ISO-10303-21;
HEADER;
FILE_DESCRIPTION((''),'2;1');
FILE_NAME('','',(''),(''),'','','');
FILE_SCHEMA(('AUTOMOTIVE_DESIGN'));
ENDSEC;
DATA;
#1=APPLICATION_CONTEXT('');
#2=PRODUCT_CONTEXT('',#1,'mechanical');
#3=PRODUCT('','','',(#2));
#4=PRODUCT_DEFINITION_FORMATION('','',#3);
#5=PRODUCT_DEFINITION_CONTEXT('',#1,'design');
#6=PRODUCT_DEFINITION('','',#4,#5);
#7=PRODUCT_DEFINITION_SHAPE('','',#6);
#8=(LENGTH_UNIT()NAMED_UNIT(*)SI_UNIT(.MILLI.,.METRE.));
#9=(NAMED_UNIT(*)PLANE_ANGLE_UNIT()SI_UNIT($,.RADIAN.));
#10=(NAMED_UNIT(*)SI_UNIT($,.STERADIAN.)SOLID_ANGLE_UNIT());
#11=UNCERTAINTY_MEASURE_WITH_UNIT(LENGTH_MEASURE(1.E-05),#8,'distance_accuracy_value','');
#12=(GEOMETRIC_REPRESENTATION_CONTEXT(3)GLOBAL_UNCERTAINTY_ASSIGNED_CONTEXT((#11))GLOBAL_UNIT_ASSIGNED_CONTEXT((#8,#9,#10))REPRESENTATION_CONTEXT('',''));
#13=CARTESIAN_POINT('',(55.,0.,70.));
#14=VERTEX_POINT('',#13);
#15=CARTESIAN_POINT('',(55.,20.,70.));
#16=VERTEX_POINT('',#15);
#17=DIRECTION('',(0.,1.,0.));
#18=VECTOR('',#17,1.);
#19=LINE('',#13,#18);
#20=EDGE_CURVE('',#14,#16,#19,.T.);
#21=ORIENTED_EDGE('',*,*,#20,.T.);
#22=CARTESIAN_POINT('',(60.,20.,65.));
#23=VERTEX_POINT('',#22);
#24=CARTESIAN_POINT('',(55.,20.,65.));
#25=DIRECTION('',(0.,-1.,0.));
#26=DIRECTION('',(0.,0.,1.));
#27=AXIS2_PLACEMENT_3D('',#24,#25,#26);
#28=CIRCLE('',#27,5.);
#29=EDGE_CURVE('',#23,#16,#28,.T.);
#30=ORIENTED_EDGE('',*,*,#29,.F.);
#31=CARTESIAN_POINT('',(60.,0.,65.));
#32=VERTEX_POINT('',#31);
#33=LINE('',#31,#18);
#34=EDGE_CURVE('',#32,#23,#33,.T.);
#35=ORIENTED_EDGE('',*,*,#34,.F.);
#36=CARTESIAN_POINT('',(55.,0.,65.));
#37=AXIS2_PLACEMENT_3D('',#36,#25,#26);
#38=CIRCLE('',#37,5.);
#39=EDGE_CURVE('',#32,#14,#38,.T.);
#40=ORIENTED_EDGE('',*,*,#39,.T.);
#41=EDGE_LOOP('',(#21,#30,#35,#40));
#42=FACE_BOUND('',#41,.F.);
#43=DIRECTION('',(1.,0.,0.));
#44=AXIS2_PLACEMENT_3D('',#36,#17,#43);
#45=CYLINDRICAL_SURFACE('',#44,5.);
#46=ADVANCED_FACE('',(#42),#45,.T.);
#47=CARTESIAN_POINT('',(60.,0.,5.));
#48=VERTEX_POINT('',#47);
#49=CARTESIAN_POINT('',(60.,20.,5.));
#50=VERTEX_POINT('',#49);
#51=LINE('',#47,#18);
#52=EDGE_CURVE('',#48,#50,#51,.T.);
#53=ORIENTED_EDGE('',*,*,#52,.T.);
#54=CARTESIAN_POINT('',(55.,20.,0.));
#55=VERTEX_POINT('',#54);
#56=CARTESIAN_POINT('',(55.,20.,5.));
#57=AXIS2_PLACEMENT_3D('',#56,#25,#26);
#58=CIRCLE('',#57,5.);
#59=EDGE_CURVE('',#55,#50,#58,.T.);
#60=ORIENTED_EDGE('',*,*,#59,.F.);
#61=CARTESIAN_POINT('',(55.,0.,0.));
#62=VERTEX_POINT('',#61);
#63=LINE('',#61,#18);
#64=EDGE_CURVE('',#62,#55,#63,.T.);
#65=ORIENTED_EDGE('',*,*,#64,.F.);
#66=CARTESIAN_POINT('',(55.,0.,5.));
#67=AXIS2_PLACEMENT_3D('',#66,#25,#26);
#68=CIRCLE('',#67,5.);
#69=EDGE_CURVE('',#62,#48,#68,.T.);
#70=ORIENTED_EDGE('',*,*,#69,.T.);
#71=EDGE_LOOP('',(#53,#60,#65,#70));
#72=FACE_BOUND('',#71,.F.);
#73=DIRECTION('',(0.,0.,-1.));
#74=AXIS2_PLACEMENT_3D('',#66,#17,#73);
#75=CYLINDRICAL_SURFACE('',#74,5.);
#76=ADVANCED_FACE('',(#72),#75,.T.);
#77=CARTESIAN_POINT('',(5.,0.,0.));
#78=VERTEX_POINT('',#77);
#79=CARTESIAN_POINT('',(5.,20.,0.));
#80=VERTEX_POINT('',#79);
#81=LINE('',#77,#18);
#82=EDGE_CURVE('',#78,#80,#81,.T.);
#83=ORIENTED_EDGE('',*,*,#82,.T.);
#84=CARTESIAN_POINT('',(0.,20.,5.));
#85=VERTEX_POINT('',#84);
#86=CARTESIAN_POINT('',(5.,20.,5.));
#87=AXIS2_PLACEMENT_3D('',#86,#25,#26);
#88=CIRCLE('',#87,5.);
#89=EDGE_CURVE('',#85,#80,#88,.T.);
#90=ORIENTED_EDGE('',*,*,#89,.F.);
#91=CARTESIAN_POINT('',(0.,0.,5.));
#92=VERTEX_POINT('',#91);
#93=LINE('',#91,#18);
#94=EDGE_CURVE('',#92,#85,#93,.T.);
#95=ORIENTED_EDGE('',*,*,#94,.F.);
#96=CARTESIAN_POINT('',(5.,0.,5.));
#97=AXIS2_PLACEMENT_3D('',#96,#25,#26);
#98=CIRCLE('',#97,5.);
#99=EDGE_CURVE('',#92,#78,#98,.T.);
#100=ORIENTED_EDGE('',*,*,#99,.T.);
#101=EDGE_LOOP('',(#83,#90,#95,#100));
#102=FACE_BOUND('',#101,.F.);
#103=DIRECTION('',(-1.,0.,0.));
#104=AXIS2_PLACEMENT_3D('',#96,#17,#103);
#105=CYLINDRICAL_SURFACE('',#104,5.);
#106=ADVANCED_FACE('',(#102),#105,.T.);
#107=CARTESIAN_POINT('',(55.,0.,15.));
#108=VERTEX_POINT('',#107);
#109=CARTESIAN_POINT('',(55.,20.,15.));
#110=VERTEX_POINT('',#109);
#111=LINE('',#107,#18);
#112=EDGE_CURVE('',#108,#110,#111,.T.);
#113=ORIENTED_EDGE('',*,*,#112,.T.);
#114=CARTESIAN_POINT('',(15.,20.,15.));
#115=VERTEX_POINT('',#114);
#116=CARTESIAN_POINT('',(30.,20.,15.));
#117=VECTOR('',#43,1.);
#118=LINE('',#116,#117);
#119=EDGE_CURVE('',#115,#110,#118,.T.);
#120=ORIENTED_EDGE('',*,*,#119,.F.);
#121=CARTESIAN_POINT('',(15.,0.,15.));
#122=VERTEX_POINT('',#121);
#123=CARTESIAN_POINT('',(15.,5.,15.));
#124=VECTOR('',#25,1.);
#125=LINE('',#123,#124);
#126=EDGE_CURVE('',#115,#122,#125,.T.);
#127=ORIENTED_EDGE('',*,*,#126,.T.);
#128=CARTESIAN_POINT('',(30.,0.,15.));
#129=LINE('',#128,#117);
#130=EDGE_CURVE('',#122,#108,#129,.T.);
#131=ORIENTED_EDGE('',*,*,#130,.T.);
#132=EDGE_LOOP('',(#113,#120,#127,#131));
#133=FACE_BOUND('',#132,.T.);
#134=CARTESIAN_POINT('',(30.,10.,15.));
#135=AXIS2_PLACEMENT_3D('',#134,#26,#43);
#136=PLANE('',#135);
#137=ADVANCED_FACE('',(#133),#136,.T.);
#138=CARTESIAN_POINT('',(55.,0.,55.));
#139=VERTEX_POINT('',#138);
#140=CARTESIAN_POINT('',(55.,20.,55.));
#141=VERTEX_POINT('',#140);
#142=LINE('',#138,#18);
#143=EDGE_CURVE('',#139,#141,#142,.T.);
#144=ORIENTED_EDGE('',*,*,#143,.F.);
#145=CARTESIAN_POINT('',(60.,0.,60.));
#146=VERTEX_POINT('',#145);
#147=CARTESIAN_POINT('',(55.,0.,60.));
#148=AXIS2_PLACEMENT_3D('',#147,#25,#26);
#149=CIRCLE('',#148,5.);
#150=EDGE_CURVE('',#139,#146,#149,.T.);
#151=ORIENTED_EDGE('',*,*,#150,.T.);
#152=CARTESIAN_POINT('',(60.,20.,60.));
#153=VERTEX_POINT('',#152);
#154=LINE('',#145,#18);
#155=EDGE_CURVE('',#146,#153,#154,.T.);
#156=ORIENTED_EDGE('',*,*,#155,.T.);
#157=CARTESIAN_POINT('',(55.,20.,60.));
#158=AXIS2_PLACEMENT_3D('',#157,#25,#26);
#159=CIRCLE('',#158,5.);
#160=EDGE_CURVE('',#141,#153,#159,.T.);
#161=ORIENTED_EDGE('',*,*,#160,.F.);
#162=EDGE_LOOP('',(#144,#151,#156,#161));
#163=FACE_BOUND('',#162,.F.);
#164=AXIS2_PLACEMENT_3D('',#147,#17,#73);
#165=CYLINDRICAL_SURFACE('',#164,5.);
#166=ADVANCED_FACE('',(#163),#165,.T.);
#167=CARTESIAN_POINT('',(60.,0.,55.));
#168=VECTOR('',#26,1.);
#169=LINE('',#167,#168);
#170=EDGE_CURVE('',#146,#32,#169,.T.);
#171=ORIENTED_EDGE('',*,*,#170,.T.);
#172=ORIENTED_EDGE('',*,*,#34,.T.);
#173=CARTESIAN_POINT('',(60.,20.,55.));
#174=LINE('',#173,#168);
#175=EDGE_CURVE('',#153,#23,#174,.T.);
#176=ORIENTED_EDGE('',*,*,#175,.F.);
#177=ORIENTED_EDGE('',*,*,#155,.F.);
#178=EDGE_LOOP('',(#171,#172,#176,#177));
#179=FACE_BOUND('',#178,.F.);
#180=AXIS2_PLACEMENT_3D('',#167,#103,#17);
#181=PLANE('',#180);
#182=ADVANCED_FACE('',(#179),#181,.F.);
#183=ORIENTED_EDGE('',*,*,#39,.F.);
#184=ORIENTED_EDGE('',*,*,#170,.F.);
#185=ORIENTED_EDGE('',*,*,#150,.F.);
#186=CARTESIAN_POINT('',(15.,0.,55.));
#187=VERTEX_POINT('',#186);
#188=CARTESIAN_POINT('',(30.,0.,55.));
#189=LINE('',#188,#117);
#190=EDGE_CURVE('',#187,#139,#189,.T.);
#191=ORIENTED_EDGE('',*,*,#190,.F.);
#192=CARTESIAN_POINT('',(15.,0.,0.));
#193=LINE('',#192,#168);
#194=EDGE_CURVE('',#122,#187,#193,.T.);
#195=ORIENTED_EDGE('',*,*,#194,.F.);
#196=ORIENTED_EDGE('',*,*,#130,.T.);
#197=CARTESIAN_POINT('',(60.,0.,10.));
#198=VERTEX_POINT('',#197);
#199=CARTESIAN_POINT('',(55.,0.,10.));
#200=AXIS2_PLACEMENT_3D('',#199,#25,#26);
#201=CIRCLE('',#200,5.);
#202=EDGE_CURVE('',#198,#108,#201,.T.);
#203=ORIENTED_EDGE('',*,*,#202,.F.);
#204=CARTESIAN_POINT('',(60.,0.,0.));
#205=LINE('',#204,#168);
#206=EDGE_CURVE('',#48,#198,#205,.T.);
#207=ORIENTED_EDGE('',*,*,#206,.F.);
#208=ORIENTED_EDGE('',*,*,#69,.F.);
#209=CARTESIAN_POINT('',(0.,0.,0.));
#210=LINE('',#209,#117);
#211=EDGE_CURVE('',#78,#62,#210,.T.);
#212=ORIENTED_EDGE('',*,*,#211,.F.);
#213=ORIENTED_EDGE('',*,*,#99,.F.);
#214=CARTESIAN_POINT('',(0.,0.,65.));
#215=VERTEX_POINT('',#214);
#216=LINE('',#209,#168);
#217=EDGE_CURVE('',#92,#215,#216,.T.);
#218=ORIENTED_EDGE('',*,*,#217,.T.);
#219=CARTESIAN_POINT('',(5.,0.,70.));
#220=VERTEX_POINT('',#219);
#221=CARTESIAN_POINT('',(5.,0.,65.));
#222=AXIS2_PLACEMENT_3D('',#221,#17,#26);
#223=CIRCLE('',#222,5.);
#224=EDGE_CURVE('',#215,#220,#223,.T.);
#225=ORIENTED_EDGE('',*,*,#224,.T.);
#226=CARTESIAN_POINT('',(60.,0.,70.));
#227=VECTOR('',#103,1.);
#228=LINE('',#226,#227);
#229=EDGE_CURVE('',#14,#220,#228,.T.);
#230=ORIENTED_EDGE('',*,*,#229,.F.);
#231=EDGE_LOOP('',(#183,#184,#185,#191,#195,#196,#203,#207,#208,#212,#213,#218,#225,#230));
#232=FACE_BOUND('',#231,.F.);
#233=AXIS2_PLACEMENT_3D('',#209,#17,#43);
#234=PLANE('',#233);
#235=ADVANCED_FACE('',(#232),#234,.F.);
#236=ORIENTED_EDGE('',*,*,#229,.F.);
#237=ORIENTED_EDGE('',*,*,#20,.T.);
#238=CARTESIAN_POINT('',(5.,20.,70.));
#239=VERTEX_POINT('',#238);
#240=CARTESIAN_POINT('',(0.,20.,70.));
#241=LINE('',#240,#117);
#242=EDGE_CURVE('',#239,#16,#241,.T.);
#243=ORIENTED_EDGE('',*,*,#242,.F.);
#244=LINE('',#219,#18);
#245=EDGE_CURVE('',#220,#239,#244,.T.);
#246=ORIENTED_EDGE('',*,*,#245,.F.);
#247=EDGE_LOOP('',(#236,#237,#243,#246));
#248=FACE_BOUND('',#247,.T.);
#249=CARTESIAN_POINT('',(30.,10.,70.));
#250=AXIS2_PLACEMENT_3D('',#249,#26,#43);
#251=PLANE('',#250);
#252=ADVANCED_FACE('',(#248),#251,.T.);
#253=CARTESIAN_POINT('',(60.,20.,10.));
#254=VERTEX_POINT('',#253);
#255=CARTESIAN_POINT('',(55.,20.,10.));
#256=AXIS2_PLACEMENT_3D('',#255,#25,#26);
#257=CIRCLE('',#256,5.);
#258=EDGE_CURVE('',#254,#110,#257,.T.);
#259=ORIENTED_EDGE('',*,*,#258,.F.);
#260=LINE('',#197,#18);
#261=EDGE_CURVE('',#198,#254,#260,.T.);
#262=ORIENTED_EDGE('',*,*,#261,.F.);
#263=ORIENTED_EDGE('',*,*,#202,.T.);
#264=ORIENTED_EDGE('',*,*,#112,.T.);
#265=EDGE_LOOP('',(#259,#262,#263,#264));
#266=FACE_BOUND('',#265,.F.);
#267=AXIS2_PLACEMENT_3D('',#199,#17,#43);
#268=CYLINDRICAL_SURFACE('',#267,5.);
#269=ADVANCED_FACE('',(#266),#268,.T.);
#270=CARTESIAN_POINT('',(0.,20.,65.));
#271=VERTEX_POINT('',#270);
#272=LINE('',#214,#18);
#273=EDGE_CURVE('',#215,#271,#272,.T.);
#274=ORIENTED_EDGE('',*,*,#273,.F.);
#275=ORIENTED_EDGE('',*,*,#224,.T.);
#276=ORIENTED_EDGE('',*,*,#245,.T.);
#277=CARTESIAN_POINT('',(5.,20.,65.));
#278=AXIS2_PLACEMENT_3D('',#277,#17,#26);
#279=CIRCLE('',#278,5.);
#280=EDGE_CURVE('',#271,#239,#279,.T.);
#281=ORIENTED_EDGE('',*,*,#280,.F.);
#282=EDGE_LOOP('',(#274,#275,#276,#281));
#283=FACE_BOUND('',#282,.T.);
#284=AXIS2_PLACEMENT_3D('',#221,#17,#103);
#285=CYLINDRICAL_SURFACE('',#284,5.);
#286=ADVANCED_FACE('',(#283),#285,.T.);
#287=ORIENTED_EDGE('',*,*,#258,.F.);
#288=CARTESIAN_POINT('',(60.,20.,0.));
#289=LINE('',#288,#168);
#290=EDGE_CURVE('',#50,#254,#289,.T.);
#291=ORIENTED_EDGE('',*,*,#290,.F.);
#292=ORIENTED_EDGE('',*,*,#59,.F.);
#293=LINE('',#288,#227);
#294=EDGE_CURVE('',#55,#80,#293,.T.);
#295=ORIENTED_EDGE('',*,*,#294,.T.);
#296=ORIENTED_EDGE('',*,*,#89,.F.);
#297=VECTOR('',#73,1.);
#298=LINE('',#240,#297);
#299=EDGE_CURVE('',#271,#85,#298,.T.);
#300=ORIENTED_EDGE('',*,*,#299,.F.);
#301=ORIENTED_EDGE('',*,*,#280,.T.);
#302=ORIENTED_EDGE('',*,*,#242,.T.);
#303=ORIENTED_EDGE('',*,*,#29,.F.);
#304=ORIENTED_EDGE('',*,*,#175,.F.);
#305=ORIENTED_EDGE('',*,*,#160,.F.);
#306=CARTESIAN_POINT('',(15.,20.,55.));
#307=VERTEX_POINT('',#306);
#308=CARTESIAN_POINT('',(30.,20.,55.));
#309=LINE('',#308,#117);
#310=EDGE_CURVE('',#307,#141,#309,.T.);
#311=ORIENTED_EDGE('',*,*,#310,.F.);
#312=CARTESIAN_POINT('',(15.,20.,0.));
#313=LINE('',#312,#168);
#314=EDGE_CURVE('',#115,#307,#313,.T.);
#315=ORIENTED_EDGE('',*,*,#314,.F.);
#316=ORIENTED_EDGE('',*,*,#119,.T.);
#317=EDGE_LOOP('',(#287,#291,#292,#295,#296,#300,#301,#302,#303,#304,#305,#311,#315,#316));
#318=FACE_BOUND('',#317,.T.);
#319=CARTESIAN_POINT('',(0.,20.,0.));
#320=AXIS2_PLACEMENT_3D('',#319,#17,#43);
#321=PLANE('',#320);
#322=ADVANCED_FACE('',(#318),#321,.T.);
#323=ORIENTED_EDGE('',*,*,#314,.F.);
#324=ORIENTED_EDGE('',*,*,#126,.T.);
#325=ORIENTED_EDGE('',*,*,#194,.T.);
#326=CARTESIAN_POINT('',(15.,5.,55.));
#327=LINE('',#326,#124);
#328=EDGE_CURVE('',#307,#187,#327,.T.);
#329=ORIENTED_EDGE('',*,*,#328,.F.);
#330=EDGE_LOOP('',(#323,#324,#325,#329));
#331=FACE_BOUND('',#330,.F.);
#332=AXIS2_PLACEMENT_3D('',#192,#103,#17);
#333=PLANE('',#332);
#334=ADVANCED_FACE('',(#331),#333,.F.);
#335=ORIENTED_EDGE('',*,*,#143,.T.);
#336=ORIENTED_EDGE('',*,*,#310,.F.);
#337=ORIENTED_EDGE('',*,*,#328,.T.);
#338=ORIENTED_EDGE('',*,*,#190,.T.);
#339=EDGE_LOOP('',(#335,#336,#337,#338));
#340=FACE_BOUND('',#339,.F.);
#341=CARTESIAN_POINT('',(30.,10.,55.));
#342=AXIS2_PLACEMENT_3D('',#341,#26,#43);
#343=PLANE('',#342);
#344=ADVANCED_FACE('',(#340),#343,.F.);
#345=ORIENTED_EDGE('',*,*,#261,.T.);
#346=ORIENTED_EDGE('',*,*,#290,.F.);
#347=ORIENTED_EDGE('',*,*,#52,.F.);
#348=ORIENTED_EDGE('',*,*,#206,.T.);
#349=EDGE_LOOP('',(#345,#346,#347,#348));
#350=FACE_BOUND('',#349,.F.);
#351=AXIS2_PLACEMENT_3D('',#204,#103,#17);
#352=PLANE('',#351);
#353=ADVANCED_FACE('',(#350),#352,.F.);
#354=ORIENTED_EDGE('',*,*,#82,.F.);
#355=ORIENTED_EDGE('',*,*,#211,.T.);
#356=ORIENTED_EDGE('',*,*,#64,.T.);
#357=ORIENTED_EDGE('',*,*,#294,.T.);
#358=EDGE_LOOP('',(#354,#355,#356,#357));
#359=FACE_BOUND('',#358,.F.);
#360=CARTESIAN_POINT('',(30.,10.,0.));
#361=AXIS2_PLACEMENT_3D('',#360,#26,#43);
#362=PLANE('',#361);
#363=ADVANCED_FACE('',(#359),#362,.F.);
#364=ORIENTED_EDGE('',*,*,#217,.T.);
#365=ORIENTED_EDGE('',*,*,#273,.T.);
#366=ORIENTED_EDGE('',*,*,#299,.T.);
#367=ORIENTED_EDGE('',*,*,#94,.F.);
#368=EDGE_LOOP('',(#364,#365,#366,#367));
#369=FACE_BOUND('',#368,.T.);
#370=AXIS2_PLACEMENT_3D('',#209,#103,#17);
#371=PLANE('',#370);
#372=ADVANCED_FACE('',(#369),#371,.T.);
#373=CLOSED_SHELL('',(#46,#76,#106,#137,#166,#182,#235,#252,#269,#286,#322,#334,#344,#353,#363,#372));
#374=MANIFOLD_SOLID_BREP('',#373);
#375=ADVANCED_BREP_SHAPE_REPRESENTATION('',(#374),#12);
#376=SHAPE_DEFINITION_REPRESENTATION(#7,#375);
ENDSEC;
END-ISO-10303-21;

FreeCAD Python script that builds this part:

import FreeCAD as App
import Part
import Sketcher

V = App.Vector


def edges_at(feature, points):
    """Names of the edges that pass closest to the given points."""
    edges = feature.Shape.Edges
    near = lambda p: min(range(len(edges)), key=lambda i: edges[i].distToShape(Part.Vertex(*p))[0])
    return sorted({f"Edge{near(p) + 1}" for p in points})


def add_polygon(sketch, points):
    """Adds a closed chain of lines whose ends are joined by coincident constraints."""
    first, n = sketch.GeometryCount, len(points)
    for a, b in zip(points, points[1:] + points[:1]):
        sketch.addGeometry(Part.LineSegment(App.Vector(*a, 0), App.Vector(*b, 0)), False)
    for i in range(n):
        sketch.addConstraint(Sketcher.Constraint("Coincident", first + i, 2, first + (i + 1) % n, 1))

doc = App.newDocument("Part")
params = doc.addObject("Spreadsheet::Sheet", "Params")
for row, (alias, value) in enumerate([
    ("sketch1_width", "60 mm"),
    ("sketch1_height", "20 mm"),
    ("pad1_length", "15 mm"),
    ("sketch2_width", "15 mm"),
    ("sketch2_height", "20 mm"),
    ("pad2_length", "70 mm"),
    ("sketch3_width", "60 mm"),
    ("sketch3_height", "20 mm"),
    ("pad3_length", "15 mm"),
    ("fillet_radius", "5 mm"),
], start=1):
    params.set(f"A{row}", alias)
    params.set(f"B{row}", "=" + value)
    params.setAlias(f"B{row}", alias)

body = doc.addObject("PartDesign::Body", "Body")

sketch1 = body.newObject("Sketcher::SketchObject", "Sketch")
sketch1.AttachmentSupport = (doc.getObject("XY_Plane"), [""])
sketch1.MapMode = "FlatFace"
add_polygon(sketch1, [(0, 20), (0, 0), (60, 0), (60, 20)])
sketch1.addConstraint(Sketcher.Constraint("Vertical", 0))
sketch1.addConstraint(Sketcher.Constraint("Horizontal", 1))
sketch1.addConstraint(Sketcher.Constraint("Vertical", 2))
sketch1.addConstraint(Sketcher.Constraint("Horizontal", 3))
sketch1.addConstraint(Sketcher.Constraint("Coincident", 0, 2, -1, 1))
sketch1.addConstraint(Sketcher.Constraint("DistanceX", 1, 1, 1, 2, 60.0))
sketch1.addConstraint(Sketcher.Constraint("DistanceY", 0, 2, 0, 1, 20.0))
sketch1.setExpression("Constraints[9]", "Params.sketch1_width")
sketch1.setExpression("Constraints[10]", "Params.sketch1_height")
pad1 = body.newObject("PartDesign::Pad", "Pad")
pad1.Profile = sketch1
pad1.setExpression("Length", "Params.pad1_length")
body2 = doc.addObject("PartDesign::Body", "Body001")

sketch2 = body2.newObject("Sketcher::SketchObject", "Sketch001")
sketch2.AttachmentSupport = (doc.getObject("XY_Plane001"), [""])
sketch2.MapMode = "FlatFace"
add_polygon(sketch2, [(0, 20), (0, 0), (15, 0), (15, 20)])
sketch2.addConstraint(Sketcher.Constraint("Vertical", 0))
sketch2.addConstraint(Sketcher.Constraint("Horizontal", 1))
sketch2.addConstraint(Sketcher.Constraint("Vertical", 2))
sketch2.addConstraint(Sketcher.Constraint("Horizontal", 3))
sketch2.addConstraint(Sketcher.Constraint("Coincident", 0, 2, -1, 1))
sketch2.addConstraint(Sketcher.Constraint("DistanceX", 1, 1, 1, 2, 15.0))
sketch2.addConstraint(Sketcher.Constraint("DistanceY", 0, 2, 0, 1, 20.0))
sketch2.setExpression("Constraints[9]", "Params.sketch2_width")
sketch2.setExpression("Constraints[10]", "Params.sketch2_height")
pad2 = body2.newObject("PartDesign::Pad", "Pad001")
pad2.Profile = sketch2
pad2.setExpression("Length", "Params.pad2_length")
body3 = doc.addObject("PartDesign::Body", "Body002")
body3.AllowCompound = True

sketch3 = body3.newObject("Sketcher::SketchObject", "Sketch002")
sketch3.AttachmentSupport = (doc.getObject("XY_Plane002"), [""])
sketch3.MapMode = "FlatFace"
sketch3.AttachmentOffset = App.Placement(V(0, 0, 55), App.Rotation())
add_polygon(sketch3, [(0, 20), (0, 0), (60, 0), (60, 20)])
sketch3.addConstraint(Sketcher.Constraint("Vertical", 0))
sketch3.addConstraint(Sketcher.Constraint("Horizontal", 1))
sketch3.addConstraint(Sketcher.Constraint("Vertical", 2))
sketch3.addConstraint(Sketcher.Constraint("Horizontal", 3))
sketch3.addConstraint(Sketcher.Constraint("Coincident", 0, 2, -1, 1))
sketch3.addConstraint(Sketcher.Constraint("DistanceX", 1, 1, 1, 2, 60.0))
sketch3.addConstraint(Sketcher.Constraint("DistanceY", 0, 2, 0, 1, 20.0))
sketch3.setExpression("Constraints[9]", "Params.sketch3_width")
sketch3.setExpression("Constraints[10]", "Params.sketch3_height")
pad3 = body3.newObject("PartDesign::Pad", "Pad002")
pad3.Profile = sketch3
pad3.setExpression("Length", "Params.pad3_length")
doc.recompute()

boolean = body3.newObject("PartDesign::Boolean", "Boolean")
boolean.Type = "Fuse"
boolean.addObjects([body])
doc.recompute()

boolean2 = body3.newObject("PartDesign::Boolean", "Boolean001")
boolean2.Type = "Fuse"
boolean2.addObjects([body2])
doc.recompute()

fillet = body3.newObject("PartDesign::Fillet", "Fillet")
fillet.Base = (boolean2, edges_at(boolean2, [
    (0, 10, 70),
    (60, 10, 70),
    (0, 10, 0),
    (60, 10, 55),
    (60, 10, 15),
    (60, 10, 0),
]))
fillet.setExpression("Radius", "Params.fillet_radius")

doc.recompute()
